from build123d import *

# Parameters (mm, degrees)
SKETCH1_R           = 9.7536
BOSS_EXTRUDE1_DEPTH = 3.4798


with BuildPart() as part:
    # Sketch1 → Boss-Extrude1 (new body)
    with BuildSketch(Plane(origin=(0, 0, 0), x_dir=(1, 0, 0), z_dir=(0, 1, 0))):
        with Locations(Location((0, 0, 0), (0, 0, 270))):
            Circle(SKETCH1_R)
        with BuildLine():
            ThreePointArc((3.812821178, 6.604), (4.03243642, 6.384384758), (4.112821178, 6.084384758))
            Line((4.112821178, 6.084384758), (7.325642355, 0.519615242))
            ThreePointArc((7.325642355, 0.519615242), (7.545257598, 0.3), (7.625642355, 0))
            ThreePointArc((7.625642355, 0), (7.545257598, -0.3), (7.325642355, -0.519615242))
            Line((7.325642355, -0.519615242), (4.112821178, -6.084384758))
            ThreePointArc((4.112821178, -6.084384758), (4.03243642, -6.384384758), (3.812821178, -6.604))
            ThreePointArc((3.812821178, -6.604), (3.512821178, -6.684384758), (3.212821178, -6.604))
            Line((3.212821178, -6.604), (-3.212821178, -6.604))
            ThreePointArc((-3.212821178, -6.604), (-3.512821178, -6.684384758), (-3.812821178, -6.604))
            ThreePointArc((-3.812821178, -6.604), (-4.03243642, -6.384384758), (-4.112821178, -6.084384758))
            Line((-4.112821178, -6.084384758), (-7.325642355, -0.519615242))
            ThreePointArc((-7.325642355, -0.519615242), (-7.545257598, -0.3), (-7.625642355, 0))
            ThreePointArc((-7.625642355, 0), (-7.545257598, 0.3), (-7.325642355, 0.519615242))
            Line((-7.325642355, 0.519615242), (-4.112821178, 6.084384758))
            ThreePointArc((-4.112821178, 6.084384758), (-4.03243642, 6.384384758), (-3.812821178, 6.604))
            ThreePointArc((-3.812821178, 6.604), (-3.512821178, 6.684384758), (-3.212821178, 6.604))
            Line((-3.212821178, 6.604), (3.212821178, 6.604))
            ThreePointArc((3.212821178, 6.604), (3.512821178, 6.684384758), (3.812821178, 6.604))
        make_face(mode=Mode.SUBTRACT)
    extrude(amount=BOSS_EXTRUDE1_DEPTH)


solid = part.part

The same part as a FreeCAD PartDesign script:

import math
import FreeCAD as App
import Part
import Sketcher

V = App.Vector
Q = App.Units.Quantity

doc = App.newDocument("Part")
params = doc.addObject("Spreadsheet::Sheet", "Params")
for row, (alias, value) in enumerate([
    ("sketch1_diameter", "0.768 in"),
    ("pad1_length", "0.137 in"),
], start=1):
    params.set(f"A{row}", alias)
    params.set(f"B{row}", "=" + value)
    params.setAlias(f"B{row}", alias)

body = doc.addObject("PartDesign::Body", "Body")

# Sketch on XZ plane
sketch1 = body.newObject("Sketcher::SketchObject", "Sketch")
sketch1.AttachmentSupport = (doc.getObject("XZ_Plane"), [""])
sketch1.MapMode = "FlatFace"
sketch1.addGeometry([
    Part.Circle(V(0, 0, 0), V(0, 0, 1), 9.7536),  # 0
    Part.ArcOfCircle(Part.Circle(V(3.512821, -6.084385, 0), V(0, 0, 1), 0.6), math.radians(-120), math.radians(-60)),  # 1
    Part.ArcOfCircle(Part.Circle(V(3.512821, -6.084385, 0), V(0, 0, 1), 0.6), math.radians(-60), math.radians(0)),  # 2
    Part.LineSegment(V(4.112821, -6.084385, 0), V(7.325642, -0.519615, 0)),  # 3
    Part.ArcOfCircle(Part.Circle(V(7.025642, 0, 0), V(0, 0, 1), 0.6), math.radians(-60), math.radians(0)),  # 4
    Part.ArcOfCircle(Part.Circle(V(7.025642, 0, 0), V(0, 0, 1), 0.6), math.radians(0), math.radians(60)),  # 5
    Part.LineSegment(V(7.325642, 0.519615, 0), V(4.112821, 6.084385, 0)),  # 6
    Part.ArcOfCircle(Part.Circle(V(3.512821, 6.084385, 0), V(0, 0, 1), 0.6), math.radians(0), math.radians(60)),  # 7
    Part.ArcOfCircle(Part.Circle(V(3.512821, 6.084385, 0), V(0, 0, 1), 0.6), math.radians(60), math.radians(120)),  # 8
    Part.LineSegment(V(3.212821, 6.604, 0), V(-3.212821, 6.604, 0)),  # 9
    Part.ArcOfCircle(Part.Circle(V(-3.512821, 6.084385, 0), V(0, 0, 1), 0.6), math.radians(60), math.radians(120)),  # 10
    Part.ArcOfCircle(Part.Circle(V(-3.512821, 6.084385, 0), V(0, 0, 1), 0.6), math.radians(120), math.radians(180)),  # 11
    Part.LineSegment(V(-4.112821, 6.084385, 0), V(-7.325642, 0.519615, 0)),  # 12
    Part.ArcOfCircle(Part.Circle(V(-7.025642, 0, 0), V(0, 0, 1), 0.6), math.radians(120), math.radians(180)),  # 13
    Part.ArcOfCircle(Part.Circle(V(-7.025642, 0, 0), V(0, 0, 1), 0.6), math.radians(180), math.radians(240)),  # 14
    Part.LineSegment(V(-7.325642, -0.519615, 0), V(-4.112821, -6.084385, 0)),  # 15
    Part.ArcOfCircle(Part.Circle(V(-3.512821, -6.084385, 0), V(0, 0, 1), 0.6), math.radians(-180), math.radians(-120)),  # 16
    Part.ArcOfCircle(Part.Circle(V(-3.512821, -6.084385, 0), V(0, 0, 1), 0.6), math.radians(-120), math.radians(-60)),  # 17
    Part.LineSegment(V(-3.212821, -6.604, 0), V(3.212821, -6.604, 0)),  # 18
], False)
sketch1.addConstraint([
    Sketcher.Constraint("Tangent", 1, 2, 2, 1),
    Sketcher.Constraint("Coincident", 2, 2, 3, 1),
    Sketcher.Constraint("Coincident", 3, 2, 4, 1),
    Sketcher.Constraint("Tangent", 4, 2, 5, 1),
    Sketcher.Constraint("Coincident", 5, 2, 6, 1),
    Sketcher.Constraint("Coincident", 6, 2, 7, 1),
    Sketcher.Constraint("Tangent", 7, 2, 8, 1),
    Sketcher.Constraint("Coincident", 8, 2, 9, 1),
    Sketcher.Constraint("Coincident", 9, 2, 10, 1),
    Sketcher.Constraint("Tangent", 10, 2, 11, 1),
    Sketcher.Constraint("Coincident", 11, 2, 12, 1),
    Sketcher.Constraint("Coincident", 12, 2, 13, 1),
    Sketcher.Constraint("Tangent", 13, 2, 14, 1),
    Sketcher.Constraint("Coincident", 14, 2, 15, 1),
    Sketcher.Constraint("Coincident", 15, 2, 16, 1),
    Sketcher.Constraint("Tangent", 16, 2, 17, 1),
    Sketcher.Constraint("Coincident", 17, 2, 18, 1),
    Sketcher.Constraint("Coincident", 18, 2, 1, 1),
    Sketcher.Constraint("Horizontal", 9),
    Sketcher.Constraint("Horizontal", 18),
    Sketcher.Constraint("Coincident", 0, 3, -1, 1),
    Sketcher.Constraint("Equal", 1, 2),
    Sketcher.Constraint("Equal", 2, 4),
    Sketcher.Constraint("Equal", 4, 5),
    Sketcher.Constraint("Equal", 5, 7),
    Sketcher.Constraint("Equal", 7, 8),
    Sketcher.Constraint("Equal", 8, 10),
    Sketcher.Constraint("Equal", 10, 11),
    Sketcher.Constraint("Equal", 11, 13),
    Sketcher.Constraint("Equal", 13, 14),
    Sketcher.Constraint("Equal", 14, 16),
    Sketcher.Constraint("Equal", 16, 17),
    Sketcher.Constraint("Symmetric", 1, 3, 10, 3, -1, 1),
    Sketcher.Constraint("Symmetric", 4, 3, 13, 3, -1, 1),
    Sketcher.Constraint("Symmetric", 7, 3, 16, 3, -1, 1),
    Sketcher.Constraint("Symmetric", 7, 3, 10, 3, -2),
    Sketcher.Constraint("Symmetric", 5, 2, 12, 2, -2),
    Sketcher.Constraint("PointOnObject", 4, 2, -1),
    Sketcher.Constraint("PointOnObject", 13, 2, -1),
    Sketcher.Constraint("Parallel", 3, 12),
    Sketcher.Constraint("Parallel", 6, 15),
    Sketcher.Constraint("Horizontal", 17, 3, 2, 2),
    Sketcher.Constraint("Horizontal", 11, 3, 6, 2),
    Sketcher.Constraint("Horizontal", 7, 2, 8, 2),
    Sketcher.Constraint("Horizontal", 9, 2, 10, 2),
    Sketcher.Constraint("Horizontal", 6, 2, 11, 2),
    Sketcher.Constraint("Horizontal", 3, 2, 14, 2),
    Sketcher.Constraint("Horizontal", 1, 2, 16, 2),
    Sketcher.Constraint("Horizontal", 16, 2, 17, 2),
    Sketcher.Constraint("Vertical", 1, 2, 7, 2),
    Sketcher.Constraint("Diameter", 0, Q("0.768 in")),
    Sketcher.Constraint("Angle", 3, Q("60 deg")),
    Sketcher.Constraint("DistanceY", 1, 2, -1, 1, Q("0.26 in")),
    Sketcher.Constraint("Radius", 1, 0.6),
    Sketcher.Constraint("DistanceX", -1, 1, 1, 3, Q("0.1383 in")),
    Sketcher.Constraint("DistanceX", -1, 1, 4, 3, Q("0.2766001 in")),
    Sketcher.Constraint("DistanceX", 7, 2, 5, 2, Q("0.1383 in")),
])
sketch1.setExpression("Constraints[50]", "Params.sketch1_diameter")
pad1 = body.newObject("PartDesign::Pad", "Pad")
pad1.Profile = sketch1
pad1.setExpression("Length", "Params.pad1_length")
pad1.Reversed = True

doc.recompute()
